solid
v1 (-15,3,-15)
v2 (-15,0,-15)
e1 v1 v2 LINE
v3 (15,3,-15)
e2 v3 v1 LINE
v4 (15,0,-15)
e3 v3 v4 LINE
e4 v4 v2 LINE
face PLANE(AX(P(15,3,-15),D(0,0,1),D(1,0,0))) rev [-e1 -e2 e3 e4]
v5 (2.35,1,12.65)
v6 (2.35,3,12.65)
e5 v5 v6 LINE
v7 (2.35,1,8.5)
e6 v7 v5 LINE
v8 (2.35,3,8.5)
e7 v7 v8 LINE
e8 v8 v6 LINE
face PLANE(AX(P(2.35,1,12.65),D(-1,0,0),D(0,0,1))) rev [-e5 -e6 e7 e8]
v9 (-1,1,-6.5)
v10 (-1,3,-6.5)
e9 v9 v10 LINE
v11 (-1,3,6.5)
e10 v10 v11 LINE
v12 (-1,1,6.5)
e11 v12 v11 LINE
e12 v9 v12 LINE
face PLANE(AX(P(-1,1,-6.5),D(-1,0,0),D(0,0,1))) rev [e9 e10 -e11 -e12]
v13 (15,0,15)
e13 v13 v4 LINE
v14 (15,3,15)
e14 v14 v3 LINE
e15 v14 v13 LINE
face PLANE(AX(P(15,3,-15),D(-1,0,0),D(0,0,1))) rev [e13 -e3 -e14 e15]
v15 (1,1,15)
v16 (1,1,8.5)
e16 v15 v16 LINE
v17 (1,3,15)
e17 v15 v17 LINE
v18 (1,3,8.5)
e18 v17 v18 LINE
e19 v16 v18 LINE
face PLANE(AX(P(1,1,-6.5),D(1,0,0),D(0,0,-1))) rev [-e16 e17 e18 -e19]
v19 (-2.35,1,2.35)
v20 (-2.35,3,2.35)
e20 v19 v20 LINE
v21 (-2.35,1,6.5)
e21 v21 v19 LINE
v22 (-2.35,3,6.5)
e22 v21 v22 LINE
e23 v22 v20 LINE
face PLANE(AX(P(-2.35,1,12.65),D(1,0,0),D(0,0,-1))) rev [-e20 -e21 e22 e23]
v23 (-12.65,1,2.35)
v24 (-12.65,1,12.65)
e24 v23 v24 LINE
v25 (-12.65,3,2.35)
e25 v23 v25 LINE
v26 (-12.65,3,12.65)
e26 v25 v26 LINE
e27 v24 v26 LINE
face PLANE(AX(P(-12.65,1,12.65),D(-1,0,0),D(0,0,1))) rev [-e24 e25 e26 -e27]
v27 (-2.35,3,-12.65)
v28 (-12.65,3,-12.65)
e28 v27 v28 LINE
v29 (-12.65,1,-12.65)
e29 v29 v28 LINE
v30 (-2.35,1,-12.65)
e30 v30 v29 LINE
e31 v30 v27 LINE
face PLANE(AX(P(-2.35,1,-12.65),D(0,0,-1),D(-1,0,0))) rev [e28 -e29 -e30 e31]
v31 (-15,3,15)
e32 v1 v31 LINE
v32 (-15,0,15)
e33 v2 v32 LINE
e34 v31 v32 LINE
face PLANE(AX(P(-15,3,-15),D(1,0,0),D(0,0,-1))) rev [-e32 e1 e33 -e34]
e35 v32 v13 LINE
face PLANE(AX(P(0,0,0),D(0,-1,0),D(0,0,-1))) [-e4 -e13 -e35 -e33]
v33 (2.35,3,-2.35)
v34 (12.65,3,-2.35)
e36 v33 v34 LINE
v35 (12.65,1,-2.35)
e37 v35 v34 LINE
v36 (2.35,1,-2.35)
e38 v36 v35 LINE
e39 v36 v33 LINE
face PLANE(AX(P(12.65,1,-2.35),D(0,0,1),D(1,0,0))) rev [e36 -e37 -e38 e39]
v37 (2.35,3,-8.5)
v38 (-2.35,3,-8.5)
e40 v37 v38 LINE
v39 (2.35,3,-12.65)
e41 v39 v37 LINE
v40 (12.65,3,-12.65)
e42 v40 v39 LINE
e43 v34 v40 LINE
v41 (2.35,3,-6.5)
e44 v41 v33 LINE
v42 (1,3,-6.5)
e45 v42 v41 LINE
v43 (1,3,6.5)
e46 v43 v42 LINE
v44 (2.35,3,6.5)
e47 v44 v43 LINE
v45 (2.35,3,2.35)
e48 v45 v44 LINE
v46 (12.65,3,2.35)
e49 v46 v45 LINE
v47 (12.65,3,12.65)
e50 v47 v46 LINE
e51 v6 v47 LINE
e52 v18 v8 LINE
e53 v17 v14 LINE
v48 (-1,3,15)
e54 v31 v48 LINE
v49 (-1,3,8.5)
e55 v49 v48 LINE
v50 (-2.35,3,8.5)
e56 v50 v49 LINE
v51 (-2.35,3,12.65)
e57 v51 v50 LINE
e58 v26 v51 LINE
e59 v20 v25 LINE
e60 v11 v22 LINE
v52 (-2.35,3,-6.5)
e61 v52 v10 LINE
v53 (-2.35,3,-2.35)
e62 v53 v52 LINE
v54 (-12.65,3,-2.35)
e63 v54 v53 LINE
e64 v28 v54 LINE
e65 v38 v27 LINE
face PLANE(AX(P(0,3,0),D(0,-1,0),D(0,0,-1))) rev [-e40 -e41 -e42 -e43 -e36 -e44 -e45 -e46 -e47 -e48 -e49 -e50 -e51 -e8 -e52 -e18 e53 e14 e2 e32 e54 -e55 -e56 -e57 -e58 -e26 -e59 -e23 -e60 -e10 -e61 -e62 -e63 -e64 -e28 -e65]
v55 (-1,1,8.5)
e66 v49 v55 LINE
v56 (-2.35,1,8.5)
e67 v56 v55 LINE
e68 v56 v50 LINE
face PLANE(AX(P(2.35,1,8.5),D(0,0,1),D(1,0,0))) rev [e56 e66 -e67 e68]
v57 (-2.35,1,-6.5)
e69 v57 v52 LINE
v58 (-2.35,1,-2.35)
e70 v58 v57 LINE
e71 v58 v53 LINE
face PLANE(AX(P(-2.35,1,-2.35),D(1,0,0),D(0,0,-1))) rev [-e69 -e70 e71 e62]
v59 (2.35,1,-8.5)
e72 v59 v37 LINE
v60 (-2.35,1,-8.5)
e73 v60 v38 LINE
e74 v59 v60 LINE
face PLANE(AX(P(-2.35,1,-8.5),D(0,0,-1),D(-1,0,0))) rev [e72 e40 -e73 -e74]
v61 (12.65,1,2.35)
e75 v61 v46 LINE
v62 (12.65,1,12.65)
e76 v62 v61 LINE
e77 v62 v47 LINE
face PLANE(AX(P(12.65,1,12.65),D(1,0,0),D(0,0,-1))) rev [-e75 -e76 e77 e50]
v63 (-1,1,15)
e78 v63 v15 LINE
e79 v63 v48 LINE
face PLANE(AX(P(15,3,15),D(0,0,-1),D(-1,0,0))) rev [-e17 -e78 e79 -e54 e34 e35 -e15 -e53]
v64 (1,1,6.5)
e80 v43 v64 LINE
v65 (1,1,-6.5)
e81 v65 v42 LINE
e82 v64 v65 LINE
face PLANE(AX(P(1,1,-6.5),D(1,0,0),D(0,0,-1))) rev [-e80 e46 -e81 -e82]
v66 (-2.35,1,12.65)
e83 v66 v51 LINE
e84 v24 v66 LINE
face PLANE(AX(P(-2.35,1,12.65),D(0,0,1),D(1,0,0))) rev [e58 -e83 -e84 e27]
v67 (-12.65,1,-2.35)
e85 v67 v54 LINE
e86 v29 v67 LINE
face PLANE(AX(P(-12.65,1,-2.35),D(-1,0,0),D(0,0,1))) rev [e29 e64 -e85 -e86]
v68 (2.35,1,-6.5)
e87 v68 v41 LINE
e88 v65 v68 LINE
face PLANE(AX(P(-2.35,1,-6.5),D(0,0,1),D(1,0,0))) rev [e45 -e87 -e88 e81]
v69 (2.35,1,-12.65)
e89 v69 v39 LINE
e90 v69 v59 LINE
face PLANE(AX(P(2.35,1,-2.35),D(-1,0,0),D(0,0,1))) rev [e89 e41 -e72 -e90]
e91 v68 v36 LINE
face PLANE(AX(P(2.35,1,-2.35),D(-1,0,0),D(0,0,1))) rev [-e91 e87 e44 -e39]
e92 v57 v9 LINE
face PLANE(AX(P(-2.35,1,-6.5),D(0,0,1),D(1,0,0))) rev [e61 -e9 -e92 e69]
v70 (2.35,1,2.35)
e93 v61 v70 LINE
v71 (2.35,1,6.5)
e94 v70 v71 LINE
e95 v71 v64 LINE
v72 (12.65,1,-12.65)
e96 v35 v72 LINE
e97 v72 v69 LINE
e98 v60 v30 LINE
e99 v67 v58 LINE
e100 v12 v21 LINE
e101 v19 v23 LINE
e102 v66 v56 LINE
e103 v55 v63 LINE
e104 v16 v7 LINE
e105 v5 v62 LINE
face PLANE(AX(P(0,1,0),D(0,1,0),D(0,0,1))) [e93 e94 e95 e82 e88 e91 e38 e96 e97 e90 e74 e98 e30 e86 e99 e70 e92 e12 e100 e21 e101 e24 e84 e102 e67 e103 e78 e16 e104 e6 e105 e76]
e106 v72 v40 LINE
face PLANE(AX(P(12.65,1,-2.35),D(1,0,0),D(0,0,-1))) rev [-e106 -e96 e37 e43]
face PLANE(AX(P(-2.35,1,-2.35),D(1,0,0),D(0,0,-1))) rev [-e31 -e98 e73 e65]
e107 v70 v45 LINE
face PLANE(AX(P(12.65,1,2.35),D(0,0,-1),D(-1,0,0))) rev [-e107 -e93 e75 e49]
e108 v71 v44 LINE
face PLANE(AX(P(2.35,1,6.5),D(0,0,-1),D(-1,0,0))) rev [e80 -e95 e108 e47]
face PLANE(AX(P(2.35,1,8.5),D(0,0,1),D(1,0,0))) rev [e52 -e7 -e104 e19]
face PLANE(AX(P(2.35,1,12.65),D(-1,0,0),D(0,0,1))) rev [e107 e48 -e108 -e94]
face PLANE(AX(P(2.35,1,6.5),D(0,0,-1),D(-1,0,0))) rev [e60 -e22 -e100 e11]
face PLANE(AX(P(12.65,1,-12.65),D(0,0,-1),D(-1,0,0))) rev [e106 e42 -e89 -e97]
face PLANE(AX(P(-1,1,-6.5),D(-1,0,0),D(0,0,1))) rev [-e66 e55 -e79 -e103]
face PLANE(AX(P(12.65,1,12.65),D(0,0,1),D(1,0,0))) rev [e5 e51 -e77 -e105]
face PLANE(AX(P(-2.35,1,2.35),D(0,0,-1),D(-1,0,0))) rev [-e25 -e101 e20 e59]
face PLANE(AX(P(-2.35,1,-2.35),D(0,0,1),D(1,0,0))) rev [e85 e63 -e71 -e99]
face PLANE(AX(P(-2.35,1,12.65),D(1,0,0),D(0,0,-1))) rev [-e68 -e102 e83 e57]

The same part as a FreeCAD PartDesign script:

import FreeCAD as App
import Part
import Sketcher

V = App.Vector
Q = App.Units.Quantity


def add_polygon(sketch, points):
    """Adds a closed chain of lines whose ends are joined by coincident constraints."""
    first, n = sketch.GeometryCount, len(points)
    for a, b in zip(points, points[1:] + points[:1]):
        sketch.addGeometry(Part.LineSegment(App.Vector(*a, 0), App.Vector(*b, 0)), False)
    for i in range(n):
        sketch.addConstraint(Sketcher.Constraint("Coincident", first + i, 2, first + (i + 1) % n, 1))

doc = App.newDocument("Part")
body = doc.addObject("PartDesign::Body", "Body")

# Sketch on XZ plane
sketch1 = doc.addObject("Sketcher::SketchObject", "Sketch")
body.addObject(sketch1)
sketch1.AttachmentSupport = (doc.XZ_Plane, [""])
sketch1.MapMode = "FlatFace"
add_polygon(sketch1, [(-15, -15), (-15, 15), (15, 15), (15, -15)])  # lines 0-3
sketch1.addConstraint(Sketcher.Constraint("Vertical", 0))
sketch1.addConstraint(Sketcher.Constraint("Horizontal", 1))
sketch1.addConstraint(Sketcher.Constraint("Vertical", 2))
sketch1.addConstraint(Sketcher.Constraint("Horizontal", 3))
sketch1.addConstraint(Sketcher.Constraint("Symmetric", 0, 2, 2, 2, -1, 1))
sketch1.addConstraint(Sketcher.Constraint("Equal", 3, 0))
sketch1.addConstraint(Sketcher.Constraint("DistanceX", 1, 1, 1, 2, Q("30 mm")))
pad1 = doc.addObject("PartDesign::Pad", "Pad")
body.addObject(pad1)
pad1.Profile = sketch1
pad1.Length = 3
pad1.Reversed = True

# Sketch on XZ plane
sketch2 = doc.addObject("Sketcher::SketchObject", "Sketch001")
body.addObject(sketch2)
sketch2.AttachmentSupport = (doc.XZ_Plane, [""])
sketch2.MapMode = "FlatFace"
sketch2.AttachmentOffset = App.Placement(V(0, 0, -3), App.Rotation())
add_polygon(sketch2, [(-13, -13), (-13, -2), (-2, -2), (-2, -13)])  # lines 0-3
add_polygon(sketch2, [(-13, 2), (-13, 13), (-2, 13), (-2, 2)])  # lines 4-7
add_polygon(sketch2, [(2, -13), (2, -2), (13, -2), (13, -13)])  # lines 8-11
add_polygon(sketch2, [(2, 2), (2, 13), (13, 13), (13, 2)])  # lines 12-15
sketch2.addConstraint(Sketcher.Constraint("Vertical", 0))
sketch2.addConstraint(Sketcher.Constraint("Horizontal", 1))
sketch2.addConstraint(Sketcher.Constraint("Vertical", 2))
sketch2.addConstraint(Sketcher.Constraint("Horizontal", 3))
sketch2.addConstraint(Sketcher.Constraint("Vertical", 4))
sketch2.addConstraint(Sketcher.Constraint("Horizontal", 5))
sketch2.addConstraint(Sketcher.Constraint("Vertical", 6))
sketch2.addConstraint(Sketcher.Constraint("Horizontal", 7))
sketch2.addConstraint(Sketcher.Constraint("Vertical", 8))
sketch2.addConstraint(Sketcher.Constraint("Horizontal", 9))
sketch2.addConstraint(Sketcher.Constraint("Vertical", 10))
sketch2.addConstraint(Sketcher.Constraint("Horizontal", 11))
sketch2.addConstraint(Sketcher.Constraint("Vertical", 12))
sketch2.addConstraint(Sketcher.Constraint("Horizontal", 13))
sketch2.addConstraint(Sketcher.Constraint("Vertical", 14))
sketch2.addConstraint(Sketcher.Constraint("Horizontal", 15))
sketch2.addConstraint(Sketcher.Constraint("Symmetric", 6, 2, 8, 2, -1, 1))
sketch2.addConstraint(Sketcher.Constraint("Symmetric", 4, 2, 10, 2, -1, 1))
sketch2.addConstraint(Sketcher.Constraint("Symmetric", 2, 2, 12, 2, -1, 1))
sketch2.addConstraint(Sketcher.Constraint("Symmetric", 0, 2, 14, 2, -1, 1))
sketch2.addConstraint(Sketcher.Constraint("Symmetric", 1, 2, 8, 2, -2))
sketch2.addConstraint(Sketcher.Constraint("Symmetric", 3, 2, 10, 2, -2))
sketch2.addConstraint(Sketcher.Constraint("Equal", 15, 0))
sketch2.addConstraint(Sketcher.Constraint("DistanceX", 1, 1, 1, 2, Q("10.3 mm")))
sketch2.addConstraint(Sketcher.Constraint("DistanceY", 0, 2, 4, 2, Q("15 mm")))
sketch2.addConstraint(Sketcher.Constraint("DistanceX", 0, 2, 8, 2, Q("15 mm")))
pocket1 = doc.addObject("PartDesign::Pocket", "Pocket")
body.addObject(pocket1)
pocket1.Profile = sketch2
pocket1.Length = 2
pocket1.Reversed = True

# Sketch on XZ plane
sketch3 = doc.addObject("Sketcher::SketchObject", "Sketch002")
body.addObject(sketch3)
sketch3.AttachmentSupport = (doc.XZ_Plane, [""])
sketch3.MapMode = "FlatFace"
sketch3.AttachmentOffset = App.Placement(V(0, 0, -3), App.Rotation())
add_polygon(sketch3, [(-2.4, 6.5), (-2.4, 8.5), (2.4, 8.5), (2.4, 6.5)])  # lines 0-3
add_polygon(sketch3, [(-2.4, -8.5), (-2.4, -6.5), (2.4, -6.5), (2.4, -8.5)])  # lines 4-7
sketch3.addConstraint(Sketcher.Constraint("Vertical", 0))
sketch3.addConstraint(Sketcher.Constraint("Horizontal", 1))
sketch3.addConstraint(Sketcher.Constraint("Vertical", 2))
sketch3.addConstraint(Sketcher.Constraint("Horizontal", 3))
sketch3.addConstraint(Sketcher.Constraint("Vertical", 4))
sketch3.addConstraint(Sketcher.Constraint("Horizontal", 5))
sketch3.addConstraint(Sketcher.Constraint("Vertical", 6))
sketch3.addConstraint(Sketcher.Constraint("Horizontal", 7))
sketch3.addConstraint(Sketcher.Constraint("Symmetric", 2, 2, 4, 2, -1, 1))
sketch3.addConstraint(Sketcher.Constraint("Symmetric", 0, 2, 6, 2, -1, 1))
sketch3.addConstraint(Sketcher.Constraint("Vertical", 3, 2, 4, 2))
sketch3.addConstraint(Sketcher.Constraint("DistanceY", 0, 1, 0, 2, Q("2 mm")))
sketch3.addConstraint(Sketcher.Constraint("DistanceX", 1, 1, 1, 2, Q("4.7 mm")))
sketch3.addConstraint(Sketcher.Constraint("DistanceY", 4, 2, 3, 2, Q("13 mm")))
pocket2 = doc.addObject("PartDesign::Pocket", "Pocket001")
body.addObject(pocket2)
pocket2.Profile = sketch3
pocket2.Length = 2
pocket2.Reversed = True

# Sketch on XZ plane
sketch4 = doc.addObject("Sketcher::SketchObject", "Sketch003")
body.addObject(sketch4)
sketch4.AttachmentSupport = (doc.XZ_Plane, [""])
sketch4.MapMode = "FlatFace"
sketch4.AttachmentOffset = App.Placement(V(0, 0, -3), App.Rotation())
add_polygon(sketch4, [(-1, -6.5), (-1, 15), (1, 15), (1, -6.5)])  # lines 0-3
sketch4.addConstraint(Sketcher.Constraint("Vertical", 0))
sketch4.addConstraint(Sketcher.Constraint("Horizontal", 1))
sketch4.addConstraint(Sketcher.Constraint("Vertical", 2))
sketch4.addConstraint(Sketcher.Constraint("Horizontal", 3))
sketch4.addConstraint(Sketcher.Constraint("DistanceX", 1, 1, 1, 2, Q("2 mm")))
sketch4.addConstraint(Sketcher.Constraint("DistanceY", 0, 1, 0, 2, Q("21.5 mm")))
sketch4.addConstraint(Sketcher.Constraint("DistanceX", 0, 2, -1, 1, Q("1 mm")))
sketch4.addConstraint(Sketcher.Constraint("DistanceY", -1, 1, 0, 2, Q("15 mm")))
pocket3 = doc.addObject("PartDesign::Pocket", "Pocket002")
body.addObject(pocket3)
pocket3.Profile = sketch4
pocket3.Length = 2
pocket3.Reversed = True

doc.recompute()
